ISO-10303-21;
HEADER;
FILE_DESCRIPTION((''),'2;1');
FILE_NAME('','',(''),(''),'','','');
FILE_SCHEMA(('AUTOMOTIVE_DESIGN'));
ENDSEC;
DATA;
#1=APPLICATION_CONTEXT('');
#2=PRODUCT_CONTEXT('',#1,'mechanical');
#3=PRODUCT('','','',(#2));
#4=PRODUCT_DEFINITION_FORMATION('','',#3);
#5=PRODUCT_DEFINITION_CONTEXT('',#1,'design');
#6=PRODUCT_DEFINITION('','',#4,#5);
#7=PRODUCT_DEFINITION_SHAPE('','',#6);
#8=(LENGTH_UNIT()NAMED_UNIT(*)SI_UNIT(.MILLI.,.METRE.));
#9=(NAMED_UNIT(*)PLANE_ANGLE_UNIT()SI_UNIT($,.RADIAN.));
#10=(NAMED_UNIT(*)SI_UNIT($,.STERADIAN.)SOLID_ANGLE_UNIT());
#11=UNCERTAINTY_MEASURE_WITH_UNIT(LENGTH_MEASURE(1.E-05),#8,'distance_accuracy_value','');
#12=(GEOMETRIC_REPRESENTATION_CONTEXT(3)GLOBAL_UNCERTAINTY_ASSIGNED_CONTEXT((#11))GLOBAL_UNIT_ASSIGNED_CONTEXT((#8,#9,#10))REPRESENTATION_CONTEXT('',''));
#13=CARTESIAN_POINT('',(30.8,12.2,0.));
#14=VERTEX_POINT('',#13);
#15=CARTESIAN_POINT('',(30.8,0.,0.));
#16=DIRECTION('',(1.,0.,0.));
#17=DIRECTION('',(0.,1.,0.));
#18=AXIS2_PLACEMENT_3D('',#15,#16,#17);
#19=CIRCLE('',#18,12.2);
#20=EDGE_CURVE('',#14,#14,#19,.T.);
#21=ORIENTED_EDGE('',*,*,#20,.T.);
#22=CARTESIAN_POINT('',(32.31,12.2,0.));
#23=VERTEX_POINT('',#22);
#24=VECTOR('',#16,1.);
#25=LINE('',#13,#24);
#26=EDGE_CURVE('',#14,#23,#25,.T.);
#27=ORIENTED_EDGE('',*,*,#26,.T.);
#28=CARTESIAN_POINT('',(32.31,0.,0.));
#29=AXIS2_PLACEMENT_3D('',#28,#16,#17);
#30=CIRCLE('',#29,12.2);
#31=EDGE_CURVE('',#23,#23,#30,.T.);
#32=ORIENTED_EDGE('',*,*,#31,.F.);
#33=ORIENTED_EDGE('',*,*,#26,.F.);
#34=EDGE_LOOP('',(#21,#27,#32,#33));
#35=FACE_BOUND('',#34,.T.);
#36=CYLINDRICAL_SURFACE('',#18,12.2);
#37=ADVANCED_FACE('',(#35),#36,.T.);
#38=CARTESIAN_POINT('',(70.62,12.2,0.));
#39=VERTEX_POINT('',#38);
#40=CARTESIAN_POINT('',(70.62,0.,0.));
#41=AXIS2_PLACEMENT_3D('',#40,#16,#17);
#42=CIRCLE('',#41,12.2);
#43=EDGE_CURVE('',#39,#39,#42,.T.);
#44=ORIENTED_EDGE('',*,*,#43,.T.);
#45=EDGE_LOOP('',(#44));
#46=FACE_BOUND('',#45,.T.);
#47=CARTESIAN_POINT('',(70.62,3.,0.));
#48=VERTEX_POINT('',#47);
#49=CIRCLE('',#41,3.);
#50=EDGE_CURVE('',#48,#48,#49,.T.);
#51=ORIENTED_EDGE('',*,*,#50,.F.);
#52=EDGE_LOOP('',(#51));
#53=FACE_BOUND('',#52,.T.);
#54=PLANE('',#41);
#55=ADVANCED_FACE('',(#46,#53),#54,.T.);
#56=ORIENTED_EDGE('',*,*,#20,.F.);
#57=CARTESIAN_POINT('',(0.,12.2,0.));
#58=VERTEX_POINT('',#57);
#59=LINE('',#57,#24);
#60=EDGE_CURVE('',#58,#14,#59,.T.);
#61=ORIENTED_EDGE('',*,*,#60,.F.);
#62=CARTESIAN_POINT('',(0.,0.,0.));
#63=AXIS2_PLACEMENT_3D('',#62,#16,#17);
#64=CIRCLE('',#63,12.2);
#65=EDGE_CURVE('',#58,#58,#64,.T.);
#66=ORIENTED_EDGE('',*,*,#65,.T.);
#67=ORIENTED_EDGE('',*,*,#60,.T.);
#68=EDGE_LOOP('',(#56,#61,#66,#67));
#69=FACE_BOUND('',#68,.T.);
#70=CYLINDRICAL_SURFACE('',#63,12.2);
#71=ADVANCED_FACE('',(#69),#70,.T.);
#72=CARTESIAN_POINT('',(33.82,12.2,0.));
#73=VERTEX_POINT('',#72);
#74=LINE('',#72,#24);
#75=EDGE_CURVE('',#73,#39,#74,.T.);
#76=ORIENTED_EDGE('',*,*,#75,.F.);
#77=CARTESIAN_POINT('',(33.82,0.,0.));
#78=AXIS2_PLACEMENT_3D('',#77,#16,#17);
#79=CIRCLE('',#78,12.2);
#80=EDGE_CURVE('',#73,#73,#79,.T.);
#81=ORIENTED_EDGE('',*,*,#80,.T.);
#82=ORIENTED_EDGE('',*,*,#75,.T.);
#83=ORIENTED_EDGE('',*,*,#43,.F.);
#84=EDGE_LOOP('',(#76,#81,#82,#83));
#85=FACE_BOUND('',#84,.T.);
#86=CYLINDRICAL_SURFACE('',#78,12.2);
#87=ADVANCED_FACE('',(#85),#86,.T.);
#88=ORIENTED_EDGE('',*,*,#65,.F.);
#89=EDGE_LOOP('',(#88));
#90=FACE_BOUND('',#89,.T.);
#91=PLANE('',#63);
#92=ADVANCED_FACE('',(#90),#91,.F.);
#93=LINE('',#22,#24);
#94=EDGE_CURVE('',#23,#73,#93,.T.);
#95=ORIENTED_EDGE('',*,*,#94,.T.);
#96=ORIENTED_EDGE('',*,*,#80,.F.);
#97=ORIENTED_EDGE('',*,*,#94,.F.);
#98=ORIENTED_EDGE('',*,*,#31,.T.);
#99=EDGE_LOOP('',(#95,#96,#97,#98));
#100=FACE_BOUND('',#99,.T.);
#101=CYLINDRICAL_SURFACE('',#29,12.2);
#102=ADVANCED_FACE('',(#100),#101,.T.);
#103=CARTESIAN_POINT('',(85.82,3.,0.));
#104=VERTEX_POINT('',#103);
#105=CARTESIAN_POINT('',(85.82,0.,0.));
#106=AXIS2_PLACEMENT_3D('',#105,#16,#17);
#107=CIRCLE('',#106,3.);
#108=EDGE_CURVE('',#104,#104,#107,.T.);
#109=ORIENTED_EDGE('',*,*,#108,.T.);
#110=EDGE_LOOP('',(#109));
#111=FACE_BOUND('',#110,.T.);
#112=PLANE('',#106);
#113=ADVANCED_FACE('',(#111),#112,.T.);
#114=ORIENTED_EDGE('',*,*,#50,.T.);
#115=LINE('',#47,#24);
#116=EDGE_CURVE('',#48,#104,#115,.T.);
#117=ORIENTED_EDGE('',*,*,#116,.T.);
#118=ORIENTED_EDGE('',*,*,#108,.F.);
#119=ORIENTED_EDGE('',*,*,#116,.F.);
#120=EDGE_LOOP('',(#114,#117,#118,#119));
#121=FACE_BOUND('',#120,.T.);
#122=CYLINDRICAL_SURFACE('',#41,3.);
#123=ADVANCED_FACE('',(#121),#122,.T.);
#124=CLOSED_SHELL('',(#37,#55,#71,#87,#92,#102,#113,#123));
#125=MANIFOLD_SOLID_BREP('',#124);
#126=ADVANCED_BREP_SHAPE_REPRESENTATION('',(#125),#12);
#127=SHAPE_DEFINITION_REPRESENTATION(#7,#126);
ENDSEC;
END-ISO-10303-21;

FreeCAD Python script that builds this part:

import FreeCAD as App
import Part
import Sketcher
Q = App.Units.Quantity

doc = App.newDocument("Part")
body = doc.addObject("PartDesign::Body", "Body")

sketch1 = body.newObject("Sketcher::SketchObject", "Sketch")
sketch1.AttachmentSupport = (doc.getObject("XY_Plane"), [""])
sketch1.MapMode = "FlatFace"
sketch1.addGeometry([
    Part.LineSegment(App.Vector(0, 12.2, 0), App.Vector(0, 0, 0)),
    Part.LineSegment(App.Vector(0, 0, 0), App.Vector(85.82, 0, 0)),
    Part.LineSegment(App.Vector(85.82, 0, 0), App.Vector(85.82, 3, 0)),
    Part.LineSegment(App.Vector(85.82, 3, 0), App.Vector(70.62, 3, 0)),
    Part.LineSegment(App.Vector(70.62, 3, 0), App.Vector(70.62, 12.2, 0)),
    Part.LineSegment(App.Vector(70.62, 12.2, 0), App.Vector(0, 12.2, 0)),
], False)
sketch1.addConstraint([
    Sketcher.Constraint("Coincident", 0, 2, 1, 1),
    Sketcher.Constraint("Coincident", 1, 2, 2, 1),
    Sketcher.Constraint("Coincident", 2, 2, 3, 1),
    Sketcher.Constraint("Coincident", 3, 2, 4, 1),
    Sketcher.Constraint("Coincident", 4, 2, 5, 1),
    Sketcher.Constraint("Coincident", 5, 2, 0, 1),
    Sketcher.Constraint("Vertical", 0),
    Sketcher.Constraint("Horizontal", 1),
    Sketcher.Constraint("Vertical", 2),
    Sketcher.Constraint("Horizontal", 3),
    Sketcher.Constraint("Vertical", 4),
    Sketcher.Constraint("Horizontal", 5),
    Sketcher.Constraint("Coincident", 0, 2, -1, 1),
    Sketcher.Constraint("DistanceY", 2, 1, 2, 2, Q("3 mm")),
    Sketcher.Constraint("DistanceX", 3, 2, 3, 1, Q("15.2 mm")),
    Sketcher.Constraint("DistanceY", 0, 2, 0, 1, Q("12.2 mm")),
    Sketcher.Constraint("DistanceX", 1, 1, 1, 2, Q("85.82 mm")),
])
revolution = body.newObject("PartDesign::Revolution", "Revolution")
revolution.Profile = sketch1
revolution.ReferenceAxis = (sketch1, ["H_Axis"])
revolution.Angle = 360

doc.recompute()
